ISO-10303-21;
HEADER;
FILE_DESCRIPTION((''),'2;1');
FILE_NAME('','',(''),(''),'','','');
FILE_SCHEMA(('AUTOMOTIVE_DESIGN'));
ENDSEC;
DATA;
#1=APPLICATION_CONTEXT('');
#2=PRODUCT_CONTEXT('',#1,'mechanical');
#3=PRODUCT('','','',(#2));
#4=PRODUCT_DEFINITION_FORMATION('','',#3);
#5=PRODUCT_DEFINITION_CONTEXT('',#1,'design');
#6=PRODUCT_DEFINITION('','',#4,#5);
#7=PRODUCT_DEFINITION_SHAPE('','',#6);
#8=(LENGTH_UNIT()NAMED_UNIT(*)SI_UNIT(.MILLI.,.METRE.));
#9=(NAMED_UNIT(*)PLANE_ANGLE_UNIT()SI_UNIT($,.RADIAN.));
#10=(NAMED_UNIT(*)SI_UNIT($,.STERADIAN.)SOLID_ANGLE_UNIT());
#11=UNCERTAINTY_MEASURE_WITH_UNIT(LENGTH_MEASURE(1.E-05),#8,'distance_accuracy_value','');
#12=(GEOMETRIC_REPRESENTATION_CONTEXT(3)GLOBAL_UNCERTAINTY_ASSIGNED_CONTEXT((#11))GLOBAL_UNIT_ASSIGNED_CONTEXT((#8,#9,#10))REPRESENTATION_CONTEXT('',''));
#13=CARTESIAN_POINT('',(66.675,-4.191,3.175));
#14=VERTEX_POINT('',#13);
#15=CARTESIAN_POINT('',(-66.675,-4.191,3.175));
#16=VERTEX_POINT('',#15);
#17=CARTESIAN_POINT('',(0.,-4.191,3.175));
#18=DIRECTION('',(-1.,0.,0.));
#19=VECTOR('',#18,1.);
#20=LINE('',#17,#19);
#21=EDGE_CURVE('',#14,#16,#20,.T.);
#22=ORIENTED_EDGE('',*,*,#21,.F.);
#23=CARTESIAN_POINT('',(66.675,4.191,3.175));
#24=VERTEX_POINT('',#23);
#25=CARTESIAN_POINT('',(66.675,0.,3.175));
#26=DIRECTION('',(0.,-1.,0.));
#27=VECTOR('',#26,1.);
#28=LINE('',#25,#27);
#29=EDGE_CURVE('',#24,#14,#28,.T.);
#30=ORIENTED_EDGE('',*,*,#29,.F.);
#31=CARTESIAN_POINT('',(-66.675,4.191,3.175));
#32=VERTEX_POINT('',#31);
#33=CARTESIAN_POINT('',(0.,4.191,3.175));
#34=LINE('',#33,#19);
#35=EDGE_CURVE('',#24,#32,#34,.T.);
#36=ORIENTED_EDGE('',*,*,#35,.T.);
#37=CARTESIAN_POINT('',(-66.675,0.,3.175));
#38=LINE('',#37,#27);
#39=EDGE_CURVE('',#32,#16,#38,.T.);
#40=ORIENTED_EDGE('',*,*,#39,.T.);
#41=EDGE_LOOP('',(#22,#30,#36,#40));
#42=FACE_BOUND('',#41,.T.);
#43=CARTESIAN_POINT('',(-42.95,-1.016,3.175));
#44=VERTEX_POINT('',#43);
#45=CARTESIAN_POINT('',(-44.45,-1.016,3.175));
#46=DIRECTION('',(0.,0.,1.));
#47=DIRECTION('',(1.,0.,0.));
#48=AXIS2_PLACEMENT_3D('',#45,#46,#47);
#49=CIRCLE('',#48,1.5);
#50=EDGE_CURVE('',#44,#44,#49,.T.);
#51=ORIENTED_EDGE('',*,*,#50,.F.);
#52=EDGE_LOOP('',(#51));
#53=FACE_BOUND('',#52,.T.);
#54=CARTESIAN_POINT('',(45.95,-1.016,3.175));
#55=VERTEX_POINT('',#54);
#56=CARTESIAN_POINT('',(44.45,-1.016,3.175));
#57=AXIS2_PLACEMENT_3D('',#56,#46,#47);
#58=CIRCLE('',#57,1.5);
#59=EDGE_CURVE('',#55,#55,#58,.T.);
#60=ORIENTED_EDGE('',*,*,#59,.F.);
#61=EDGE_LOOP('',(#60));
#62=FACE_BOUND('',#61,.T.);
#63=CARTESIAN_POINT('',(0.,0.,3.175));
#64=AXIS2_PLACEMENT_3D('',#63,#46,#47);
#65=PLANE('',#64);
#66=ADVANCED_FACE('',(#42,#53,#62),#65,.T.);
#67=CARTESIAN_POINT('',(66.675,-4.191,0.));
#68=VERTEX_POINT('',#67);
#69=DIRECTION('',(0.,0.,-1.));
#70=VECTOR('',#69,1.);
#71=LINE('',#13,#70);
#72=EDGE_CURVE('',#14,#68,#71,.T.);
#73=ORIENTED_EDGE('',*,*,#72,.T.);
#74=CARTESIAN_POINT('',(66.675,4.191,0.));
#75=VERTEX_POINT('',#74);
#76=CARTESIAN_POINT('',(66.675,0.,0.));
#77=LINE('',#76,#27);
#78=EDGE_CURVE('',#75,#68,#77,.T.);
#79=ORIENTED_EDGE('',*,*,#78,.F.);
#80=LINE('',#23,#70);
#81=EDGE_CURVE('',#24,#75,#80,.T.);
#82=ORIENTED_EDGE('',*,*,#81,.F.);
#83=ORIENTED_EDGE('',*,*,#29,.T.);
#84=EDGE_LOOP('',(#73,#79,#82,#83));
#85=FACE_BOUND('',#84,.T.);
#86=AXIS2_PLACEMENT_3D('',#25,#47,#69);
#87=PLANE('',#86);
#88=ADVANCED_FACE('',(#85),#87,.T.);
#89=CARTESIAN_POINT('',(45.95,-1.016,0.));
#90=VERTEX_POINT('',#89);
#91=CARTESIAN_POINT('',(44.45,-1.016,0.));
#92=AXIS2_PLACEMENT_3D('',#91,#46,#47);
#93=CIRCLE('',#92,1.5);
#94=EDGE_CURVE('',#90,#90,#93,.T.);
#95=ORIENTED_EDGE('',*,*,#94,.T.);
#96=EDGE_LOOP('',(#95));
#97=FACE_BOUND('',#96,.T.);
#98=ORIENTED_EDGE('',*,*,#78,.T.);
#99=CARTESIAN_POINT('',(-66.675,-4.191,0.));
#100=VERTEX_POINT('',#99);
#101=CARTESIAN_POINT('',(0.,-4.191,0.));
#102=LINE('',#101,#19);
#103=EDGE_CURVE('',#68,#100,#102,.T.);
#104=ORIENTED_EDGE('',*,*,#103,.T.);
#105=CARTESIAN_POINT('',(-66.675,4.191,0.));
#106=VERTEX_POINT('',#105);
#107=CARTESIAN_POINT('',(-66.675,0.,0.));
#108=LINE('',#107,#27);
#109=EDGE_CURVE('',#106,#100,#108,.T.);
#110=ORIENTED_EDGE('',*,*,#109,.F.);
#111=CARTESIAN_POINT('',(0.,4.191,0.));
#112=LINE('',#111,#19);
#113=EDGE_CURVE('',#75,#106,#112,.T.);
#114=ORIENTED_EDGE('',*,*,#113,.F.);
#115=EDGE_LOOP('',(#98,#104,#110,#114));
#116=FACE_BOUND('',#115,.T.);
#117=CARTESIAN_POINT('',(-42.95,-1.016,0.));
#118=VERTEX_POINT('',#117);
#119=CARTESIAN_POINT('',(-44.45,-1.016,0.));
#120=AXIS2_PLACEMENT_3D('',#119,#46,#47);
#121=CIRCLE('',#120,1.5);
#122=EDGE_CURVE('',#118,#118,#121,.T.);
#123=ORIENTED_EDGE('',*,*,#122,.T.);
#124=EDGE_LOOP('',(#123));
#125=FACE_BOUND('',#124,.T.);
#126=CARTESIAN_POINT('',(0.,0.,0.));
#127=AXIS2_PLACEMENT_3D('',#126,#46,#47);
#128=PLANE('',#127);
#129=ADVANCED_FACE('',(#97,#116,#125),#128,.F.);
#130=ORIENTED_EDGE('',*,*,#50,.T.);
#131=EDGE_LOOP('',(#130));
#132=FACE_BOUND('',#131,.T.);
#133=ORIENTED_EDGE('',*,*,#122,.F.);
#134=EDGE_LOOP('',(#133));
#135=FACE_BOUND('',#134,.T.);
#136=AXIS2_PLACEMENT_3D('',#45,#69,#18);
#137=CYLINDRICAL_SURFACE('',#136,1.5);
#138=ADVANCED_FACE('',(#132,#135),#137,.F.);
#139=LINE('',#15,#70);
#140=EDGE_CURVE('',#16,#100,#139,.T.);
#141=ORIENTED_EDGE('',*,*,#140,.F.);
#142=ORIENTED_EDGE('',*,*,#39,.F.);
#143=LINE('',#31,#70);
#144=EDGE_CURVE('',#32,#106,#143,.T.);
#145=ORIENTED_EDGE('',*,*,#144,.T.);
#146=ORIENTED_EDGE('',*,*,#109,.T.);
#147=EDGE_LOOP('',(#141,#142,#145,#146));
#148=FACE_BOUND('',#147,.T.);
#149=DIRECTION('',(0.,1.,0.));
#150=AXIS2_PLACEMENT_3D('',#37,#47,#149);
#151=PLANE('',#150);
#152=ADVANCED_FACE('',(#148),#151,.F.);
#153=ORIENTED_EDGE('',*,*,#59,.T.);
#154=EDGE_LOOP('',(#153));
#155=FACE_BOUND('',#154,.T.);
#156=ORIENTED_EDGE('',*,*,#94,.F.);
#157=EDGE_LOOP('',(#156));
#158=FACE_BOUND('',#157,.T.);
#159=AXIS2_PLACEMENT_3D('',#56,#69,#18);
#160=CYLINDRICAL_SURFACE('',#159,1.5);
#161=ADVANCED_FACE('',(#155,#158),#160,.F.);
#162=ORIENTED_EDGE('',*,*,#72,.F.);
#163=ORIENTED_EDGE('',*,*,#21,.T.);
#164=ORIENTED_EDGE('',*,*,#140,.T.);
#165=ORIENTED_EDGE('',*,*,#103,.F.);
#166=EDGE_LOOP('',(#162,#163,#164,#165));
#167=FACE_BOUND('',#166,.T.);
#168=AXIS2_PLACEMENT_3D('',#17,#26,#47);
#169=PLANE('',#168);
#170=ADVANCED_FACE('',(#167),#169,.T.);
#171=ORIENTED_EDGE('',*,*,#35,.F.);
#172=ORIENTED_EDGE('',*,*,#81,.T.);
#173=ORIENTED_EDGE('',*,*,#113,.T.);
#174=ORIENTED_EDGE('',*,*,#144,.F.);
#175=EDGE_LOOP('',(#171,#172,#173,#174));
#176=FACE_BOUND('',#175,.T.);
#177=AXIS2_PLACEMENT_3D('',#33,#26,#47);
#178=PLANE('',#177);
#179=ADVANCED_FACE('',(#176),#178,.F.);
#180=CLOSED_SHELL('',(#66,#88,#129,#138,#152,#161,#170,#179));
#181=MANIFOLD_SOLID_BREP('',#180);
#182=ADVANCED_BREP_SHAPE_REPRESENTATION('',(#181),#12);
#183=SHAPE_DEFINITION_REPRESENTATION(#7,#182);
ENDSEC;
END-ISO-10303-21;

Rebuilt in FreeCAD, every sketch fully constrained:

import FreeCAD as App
import Part
import Sketcher
Q = App.Units.Quantity

doc = App.newDocument("Part")
body = doc.addObject("PartDesign::Body", "Body")

# Sketch on XY plane
sketch1 = body.newObject("Sketcher::SketchObject", "Sketch")
sketch1.AttachmentSupport = (doc.getObject("XY_Plane"), [""])
sketch1.MapMode = "FlatFace"
sketch1.addGeometry([
    Part.LineSegment(App.Vector(-66.675, 4.191, 0), App.Vector(-66.675, -4.191, 0)),  # 0
    Part.LineSegment(App.Vector(-66.675, -4.191, 0), App.Vector(66.675, -4.191, 0)),  # 1
    Part.LineSegment(App.Vector(66.675, -4.191, 0), App.Vector(66.675, 4.191, 0)),  # 2
    Part.LineSegment(App.Vector(66.675, 4.191, 0), App.Vector(-66.675, 4.191, 0)),  # 3
    Part.Circle(App.Vector(-44.45, -1.016, 0), App.Vector(0, 0, 1), 1.5),  # 4
    Part.Circle(App.Vector(44.45, -1.016, 0), App.Vector(0, 0, 1), 1.5),  # 5
], False)
sketch1.addConstraint([
    Sketcher.Constraint("Coincident", 0, 2, 1, 1),
    Sketcher.Constraint("Coincident", 1, 2, 2, 1),
    Sketcher.Constraint("Coincident", 2, 2, 3, 1),
    Sketcher.Constraint("Coincident", 3, 2, 0, 1),
    Sketcher.Constraint("Vertical", 0),
    Sketcher.Constraint("Horizontal", 1),
    Sketcher.Constraint("Vertical", 2),
    Sketcher.Constraint("Horizontal", 3),
    Sketcher.Constraint("Equal", 4, 5),
    Sketcher.Constraint("Symmetric", 0, 2, 2, 2, -1, 1),
    Sketcher.Constraint("Symmetric", 4, 3, 5, 3, -2),
    Sketcher.Constraint("DistanceX", 1, 1, 1, 2, Q("5.25 in")),
    Sketcher.Constraint("DistanceY", 0, 2, 0, 1, Q("0.33 in")),
    Sketcher.Constraint("DistanceX", 4, 3, 5, 3, Q("3.5 in")),
    Sketcher.Constraint("Diameter", 4, 3.0),
    Sketcher.Constraint("DistanceY", 4, 3, -1, 1, Q("0.04 in")),
])
pad1 = body.newObject("PartDesign::Pad", "Pad")
pad1.Profile = sketch1
pad1.Length = Q("0.125 in")

doc.recompute()
